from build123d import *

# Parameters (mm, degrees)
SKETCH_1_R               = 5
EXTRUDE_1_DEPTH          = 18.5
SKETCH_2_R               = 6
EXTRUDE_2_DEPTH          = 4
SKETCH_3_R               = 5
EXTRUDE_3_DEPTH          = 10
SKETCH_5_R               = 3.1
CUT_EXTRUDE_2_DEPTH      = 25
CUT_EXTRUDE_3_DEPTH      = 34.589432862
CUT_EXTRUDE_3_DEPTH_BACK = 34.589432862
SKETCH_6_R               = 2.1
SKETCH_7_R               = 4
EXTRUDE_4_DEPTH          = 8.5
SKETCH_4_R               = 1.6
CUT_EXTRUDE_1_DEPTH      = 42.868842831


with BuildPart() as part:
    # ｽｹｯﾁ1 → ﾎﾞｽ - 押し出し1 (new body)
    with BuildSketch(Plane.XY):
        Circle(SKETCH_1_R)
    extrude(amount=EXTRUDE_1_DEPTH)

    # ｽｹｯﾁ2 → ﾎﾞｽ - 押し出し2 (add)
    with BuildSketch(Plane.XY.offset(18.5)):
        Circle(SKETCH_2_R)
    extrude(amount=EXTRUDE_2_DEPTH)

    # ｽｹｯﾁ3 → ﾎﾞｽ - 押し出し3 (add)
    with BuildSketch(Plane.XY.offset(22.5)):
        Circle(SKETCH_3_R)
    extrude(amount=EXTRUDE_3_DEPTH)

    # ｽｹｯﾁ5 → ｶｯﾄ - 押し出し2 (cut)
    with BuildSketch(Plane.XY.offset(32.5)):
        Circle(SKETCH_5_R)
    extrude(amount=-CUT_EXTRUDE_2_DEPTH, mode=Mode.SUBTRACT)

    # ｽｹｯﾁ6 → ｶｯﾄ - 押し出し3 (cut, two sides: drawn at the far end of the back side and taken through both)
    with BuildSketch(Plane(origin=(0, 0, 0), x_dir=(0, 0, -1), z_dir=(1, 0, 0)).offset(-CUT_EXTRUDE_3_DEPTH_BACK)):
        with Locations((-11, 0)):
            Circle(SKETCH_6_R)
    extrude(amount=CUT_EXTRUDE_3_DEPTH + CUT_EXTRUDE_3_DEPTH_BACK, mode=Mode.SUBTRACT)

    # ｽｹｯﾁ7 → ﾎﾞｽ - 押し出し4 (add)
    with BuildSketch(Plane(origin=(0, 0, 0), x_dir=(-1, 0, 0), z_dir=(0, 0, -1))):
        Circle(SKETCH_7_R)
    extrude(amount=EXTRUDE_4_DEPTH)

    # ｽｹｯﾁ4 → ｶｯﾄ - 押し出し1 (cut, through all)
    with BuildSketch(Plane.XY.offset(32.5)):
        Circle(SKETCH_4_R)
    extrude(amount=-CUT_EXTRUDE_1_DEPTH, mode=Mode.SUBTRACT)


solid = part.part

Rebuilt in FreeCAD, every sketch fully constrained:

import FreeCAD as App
import Part
import Sketcher
Q = App.Units.Quantity

doc = App.newDocument("Part")
params = doc.addObject("Spreadsheet::Sheet", "Params")
for row, (alias, value) in enumerate([
    ("sketch1_diameter", "10 mm"),
    ("pad1_length", "18.5 mm"),
    ("sketch2_diameter", "12 mm"),
    ("pad2_length", "4 mm"),
    ("sketch3_diameter", "10 mm"),
    ("pad3_length", "10 mm"),
    ("sketch4_diameter", "6.2 mm"),
    ("pocket1_length", "25 mm"),
    ("sketch5_diameter", "4.2 mm"),
    ("sketch6_diameter", "8 mm"),
    ("pad4_length", "8.5 mm"),
    ("sketch7_diameter", "3.2 mm"),
], start=1):
    params.set(f"A{row}", alias)
    params.set(f"B{row}", "=" + value)
    params.setAlias(f"B{row}", alias)

body = doc.addObject("PartDesign::Body", "Body")

# Sketch on XY plane
sketch1 = doc.addObject("Sketcher::SketchObject", "Sketch")
body.addObject(sketch1)
sketch1.AttachmentSupport = (doc.XY_Plane, [""])
sketch1.MapMode = "FlatFace"
sketch1.addGeometry(Part.Circle(App.Vector(0, 0, 0), App.Vector(0, 0, 1), 5), False)
sketch1.addConstraint(Sketcher.Constraint("Coincident", 0, 3, -1, 1))
sketch1.addConstraint(Sketcher.Constraint("Diameter", 0, Q("10 mm")))
sketch1.setExpression("Constraints[1]", "Params.sketch1_diameter")
pad1 = doc.addObject("PartDesign::Pad", "Pad")
body.addObject(pad1)
pad1.Profile = sketch1
pad1.setExpression("Length", "Params.pad1_length")

# Sketch on XY plane
sketch2 = doc.addObject("Sketcher::SketchObject", "Sketch001")
body.addObject(sketch2)
sketch2.AttachmentSupport = (doc.XY_Plane, [""])
sketch2.MapMode = "FlatFace"
sketch2.AttachmentOffset = App.Placement(App.Vector(0, 0, 18.5), App.Rotation())
sketch2.addGeometry(Part.Circle(App.Vector(0, 0, 0), App.Vector(0, 0, 1), 6), False)
sketch2.addConstraint(Sketcher.Constraint("Coincident", 0, 3, -1, 1))
sketch2.addConstraint(Sketcher.Constraint("Diameter", 0, Q("12 mm")))
sketch2.setExpression("Constraints[1]", "Params.sketch2_diameter")
pad2 = doc.addObject("PartDesign::Pad", "Pad001")
body.addObject(pad2)
pad2.Profile = sketch2
pad2.setExpression("Length", "Params.pad2_length")

# Sketch on XY plane
sketch3 = doc.addObject("Sketcher::SketchObject", "Sketch002")
body.addObject(sketch3)
sketch3.AttachmentSupport = (doc.XY_Plane, [""])
sketch3.MapMode = "FlatFace"
sketch3.AttachmentOffset = App.Placement(App.Vector(0, 0, 22.5), App.Rotation())
sketch3.addGeometry(Part.Circle(App.Vector(0, 0, 0), App.Vector(0, 0, 1), 5), False)
sketch3.addConstraint(Sketcher.Constraint("Coincident", 0, 3, -1, 1))
sketch3.addConstraint(Sketcher.Constraint("Diameter", 0, Q("10 mm")))
sketch3.setExpression("Constraints[1]", "Params.sketch3_diameter")
pad3 = doc.addObject("PartDesign::Pad", "Pad002")
body.addObject(pad3)
pad3.Profile = sketch3
pad3.setExpression("Length", "Params.pad3_length")

# Sketch on XY plane
sketch4 = doc.addObject("Sketcher::SketchObject", "Sketch003")
body.addObject(sketch4)
sketch4.AttachmentSupport = (doc.XY_Plane, [""])
sketch4.MapMode = "FlatFace"
sketch4.AttachmentOffset = App.Placement(App.Vector(0, 0, 32.5), App.Rotation())
sketch4.addGeometry(Part.Circle(App.Vector(0, 0, 0), App.Vector(0, 0, 1), 3.1), False)
sketch4.addConstraint(Sketcher.Constraint("Coincident", 0, 3, -1, 1))
sketch4.addConstraint(Sketcher.Constraint("Diameter", 0, Q("6.2 mm")))
sketch4.setExpression("Constraints[1]", "Params.sketch4_diameter")
pocket1 = doc.addObject("PartDesign::Pocket", "Pocket")
body.addObject(pocket1)
pocket1.Profile = sketch4
pocket1.setExpression("Length", "Params.pocket1_length")

# Sketch on YZ plane
sketch5 = doc.addObject("Sketcher::SketchObject", "Sketch004")
body.addObject(sketch5)
sketch5.AttachmentSupport = (doc.YZ_Plane, [""])
sketch5.MapMode = "FlatFace"
sketch5.addGeometry(Part.Circle(App.Vector(0, 11, 0), App.Vector(0, 0, 1), 2.1), False)
sketch5.addConstraint(Sketcher.Constraint("PointOnObject", 0, 3, -2))
sketch5.addConstraint(Sketcher.Constraint("Diameter", 0, Q("4.2 mm")))
sketch5.addConstraint(Sketcher.Constraint("DistanceY", -1, 1, 0, 3, Q("11 mm")))
sketch5.setExpression("Constraints[1]", "Params.sketch5_diameter")
pocket2 = doc.addObject("PartDesign::Pocket", "Pocket001")
body.addObject(pocket2)
pocket2.Profile = sketch5
pocket2.Type = "ThroughAll"
pocket2.Midplane = True

# Sketch on XY plane
sketch6 = doc.addObject("Sketcher::SketchObject", "Sketch005")
body.addObject(sketch6)
sketch6.AttachmentSupport = (doc.XY_Plane, [""])
sketch6.MapMode = "FlatFace"
sketch6.addGeometry(Part.Circle(App.Vector(0, 0, 0), App.Vector(0, 0, 1), 4), False)
sketch6.addConstraint(Sketcher.Constraint("Coincident", 0, 3, -1, 1))
sketch6.addConstraint(Sketcher.Constraint("Diameter", 0, Q("8 mm")))
sketch6.setExpression("Constraints[1]", "Params.sketch6_diameter")
pad4 = doc.addObject("PartDesign::Pad", "Pad003")
body.addObject(pad4)
pad4.Profile = sketch6
pad4.setExpression("Length", "Params.pad4_length")
pad4.Reversed = True

# Sketch on XY plane
sketch7 = doc.addObject("Sketcher::SketchObject", "Sketch006")
body.addObject(sketch7)
sketch7.AttachmentSupport = (doc.XY_Plane, [""])
sketch7.MapMode = "FlatFace"
sketch7.AttachmentOffset = App.Placement(App.Vector(0, 0, 32.5), App.Rotation())
sketch7.addGeometry(Part.Circle(App.Vector(0, 0, 0), App.Vector(0, 0, 1), 1.6), False)
sketch7.addConstraint(Sketcher.Constraint("Coincident", 0, 3, -1, 1))
sketch7.addConstraint(Sketcher.Constraint("Diameter", 0, Q("3.2 mm")))
sketch7.setExpression("Constraints[1]", "Params.sketch7_diameter")
pocket3 = doc.addObject("PartDesign::Pocket", "Pocket002")
body.addObject(pocket3)
pocket3.Profile = sketch7
pocket3.Type = "ThroughAll"

doc.recompute()
